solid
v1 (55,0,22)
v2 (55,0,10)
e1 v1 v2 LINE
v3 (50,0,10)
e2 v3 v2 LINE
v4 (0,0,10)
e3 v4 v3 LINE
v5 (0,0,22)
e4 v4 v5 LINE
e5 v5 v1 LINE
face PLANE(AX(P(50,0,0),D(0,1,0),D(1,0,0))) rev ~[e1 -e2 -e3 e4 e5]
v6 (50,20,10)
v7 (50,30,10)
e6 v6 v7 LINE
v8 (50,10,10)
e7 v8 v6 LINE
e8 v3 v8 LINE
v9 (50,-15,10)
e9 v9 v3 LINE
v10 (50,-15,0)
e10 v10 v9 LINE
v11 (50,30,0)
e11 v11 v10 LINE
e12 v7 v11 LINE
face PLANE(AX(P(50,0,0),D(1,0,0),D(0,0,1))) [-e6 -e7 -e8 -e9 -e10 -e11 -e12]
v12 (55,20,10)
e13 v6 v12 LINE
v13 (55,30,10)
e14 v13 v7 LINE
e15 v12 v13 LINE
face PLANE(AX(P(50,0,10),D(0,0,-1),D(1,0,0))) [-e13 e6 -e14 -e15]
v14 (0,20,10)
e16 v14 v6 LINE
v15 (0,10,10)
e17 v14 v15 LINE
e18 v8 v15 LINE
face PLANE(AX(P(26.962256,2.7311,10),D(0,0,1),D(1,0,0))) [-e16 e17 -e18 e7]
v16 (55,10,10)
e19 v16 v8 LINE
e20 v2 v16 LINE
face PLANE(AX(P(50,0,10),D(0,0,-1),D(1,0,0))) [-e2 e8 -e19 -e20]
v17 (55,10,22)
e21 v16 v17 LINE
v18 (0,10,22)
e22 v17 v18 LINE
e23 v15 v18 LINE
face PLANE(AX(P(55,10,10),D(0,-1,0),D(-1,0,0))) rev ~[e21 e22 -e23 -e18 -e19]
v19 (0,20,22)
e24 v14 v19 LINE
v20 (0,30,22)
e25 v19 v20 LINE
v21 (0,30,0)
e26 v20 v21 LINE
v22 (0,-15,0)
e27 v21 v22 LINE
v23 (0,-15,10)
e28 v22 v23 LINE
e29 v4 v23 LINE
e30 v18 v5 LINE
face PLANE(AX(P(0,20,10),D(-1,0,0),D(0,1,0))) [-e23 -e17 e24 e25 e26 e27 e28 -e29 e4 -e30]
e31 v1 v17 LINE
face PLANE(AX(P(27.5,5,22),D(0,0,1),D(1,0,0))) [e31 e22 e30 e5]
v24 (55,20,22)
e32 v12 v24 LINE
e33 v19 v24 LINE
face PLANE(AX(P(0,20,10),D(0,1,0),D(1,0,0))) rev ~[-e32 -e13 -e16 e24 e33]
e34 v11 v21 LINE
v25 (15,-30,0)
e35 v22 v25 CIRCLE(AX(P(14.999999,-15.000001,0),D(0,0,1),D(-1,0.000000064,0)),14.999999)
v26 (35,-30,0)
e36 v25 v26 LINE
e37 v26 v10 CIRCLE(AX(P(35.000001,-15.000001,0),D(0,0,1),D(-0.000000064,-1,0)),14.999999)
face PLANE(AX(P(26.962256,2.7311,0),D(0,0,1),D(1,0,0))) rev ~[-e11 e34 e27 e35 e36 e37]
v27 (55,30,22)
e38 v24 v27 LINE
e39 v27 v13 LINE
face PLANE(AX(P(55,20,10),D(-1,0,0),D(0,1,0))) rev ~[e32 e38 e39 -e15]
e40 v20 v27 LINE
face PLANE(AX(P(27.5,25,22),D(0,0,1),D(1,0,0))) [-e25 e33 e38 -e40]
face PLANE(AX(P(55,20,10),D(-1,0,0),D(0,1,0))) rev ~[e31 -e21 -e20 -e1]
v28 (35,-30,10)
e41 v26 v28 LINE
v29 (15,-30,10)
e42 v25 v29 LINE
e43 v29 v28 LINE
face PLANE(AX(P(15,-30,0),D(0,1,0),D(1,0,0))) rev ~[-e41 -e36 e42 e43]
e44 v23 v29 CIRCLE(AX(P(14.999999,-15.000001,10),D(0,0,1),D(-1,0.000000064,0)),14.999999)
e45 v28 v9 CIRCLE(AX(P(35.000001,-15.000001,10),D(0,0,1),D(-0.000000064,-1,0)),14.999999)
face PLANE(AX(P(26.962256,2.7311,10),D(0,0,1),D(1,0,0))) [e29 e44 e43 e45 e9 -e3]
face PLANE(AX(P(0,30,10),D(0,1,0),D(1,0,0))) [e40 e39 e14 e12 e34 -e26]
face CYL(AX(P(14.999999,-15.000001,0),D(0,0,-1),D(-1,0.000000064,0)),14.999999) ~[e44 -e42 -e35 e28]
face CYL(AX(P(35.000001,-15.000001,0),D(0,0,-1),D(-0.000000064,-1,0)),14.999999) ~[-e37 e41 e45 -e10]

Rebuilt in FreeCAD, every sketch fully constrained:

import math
import FreeCAD as App
import Part
import Sketcher
from FreeCAD import Vector

doc = App.newDocument("Part")
body = doc.addObject("PartDesign::Body", "Body")

# Sketch on XY plane
sketch1 = body.newObject("Sketcher::SketchObject", "Sketch")
sketch1.AttachmentSupport = (doc.getObject("XY_Plane"), [""])
sketch1.MapMode = "FlatFace"
sketch1.addGeometry([
    Part.LineSegment(Vector(55, 30, 0), Vector(0, 30, 0)),  # 0
    Part.LineSegment(Vector(0, 30, 0), Vector(0, -15, 0)),  # 1
    Part.ArcOfCircle(Part.Circle(Vector(15, -15, 0), Vector(0, 0, 1), 15), math.radians(180), math.radians(270)),  # 2
    Part.LineSegment(Vector(15, -30, 0), Vector(35, -30, 0)),  # 3
    Part.ArcOfCircle(Part.Circle(Vector(35, -15, 0), Vector(0, 0, 1), 15), math.radians(-90), math.radians(0)),  # 4
    Part.LineSegment(Vector(50, -15, 0), Vector(50, 0, 0)),  # 5
    Part.LineSegment(Vector(50, 0, 0), Vector(55, 0, 0)),  # 6
    Part.LineSegment(Vector(55, 0, 0), Vector(55, 30, 0)),  # 7
], False)
sketch1.addConstraint([
    Sketcher.Constraint("Coincident", 0, 2, 1, 1),
    Sketcher.Constraint("Tangent", 1, 2, 2, 1),
    Sketcher.Constraint("Tangent", 2, 2, 3, 1),
    Sketcher.Constraint("Tangent", 3, 2, 4, 1),
    Sketcher.Constraint("Tangent", 4, 2, 5, 1),
    Sketcher.Constraint("Coincident", 5, 2, 6, 1),
    Sketcher.Constraint("Coincident", 6, 2, 7, 1),
    Sketcher.Constraint("Coincident", 7, 2, 0, 1),
    Sketcher.Constraint("Horizontal", 0),
    Sketcher.Constraint("Vertical", 1),
    Sketcher.Constraint("Horizontal", 3),
    Sketcher.Constraint("Vertical", 5),
    Sketcher.Constraint("Horizontal", 6),
    Sketcher.Constraint("Vertical", 7),
    Sketcher.Constraint("Equal", 2, 4),
    Sketcher.Constraint("PointOnObject", 0, 2, -2),
    Sketcher.Constraint("PointOnObject", 5, 2, -1),
    Sketcher.Constraint("Radius", 2, 14.999999),
    Sketcher.Constraint("DistanceX", 0, 2, 0, 1, 55.0),
    Sketcher.Constraint("DistanceX", 3, 1, 3, 2, 20.0),
    Sketcher.Constraint("DistanceY", 1, 2, 1, 1, 45.0),
    Sketcher.Constraint("DistanceY", 5, 1, 5, 2, 15.0),
])
pad1 = body.newObject("PartDesign::Pad", "Pad")
pad1.Profile = sketch1
pad1.Length = 10

# Sketch on XY plane
sketch2 = body.newObject("Sketcher::SketchObject", "Sketch001")
sketch2.AttachmentSupport = (doc.getObject("XY_Plane"), [""])
sketch2.MapMode = "FlatFace"
sketch2.AttachmentOffset = App.Placement(Vector(0, 0, 10), App.Rotation())
sketch2.addGeometry([
    Part.LineSegment(Vector(0, 30, 0), Vector(0, 20, 0)),  # 0
    Part.LineSegment(Vector(0, 20, 0), Vector(55, 20, 0)),  # 1
    Part.LineSegment(Vector(55, 20, 0), Vector(55, 30, 0)),  # 2
    Part.LineSegment(Vector(55, 30, 0), Vector(0, 30, 0)),  # 3
    Part.LineSegment(Vector(0, 0, 0), Vector(55, 0, 0)),  # 4
    Part.LineSegment(Vector(55, 0, 0), Vector(55, 10, 0)),  # 5
    Part.LineSegment(Vector(55, 10, 0), Vector(0, 10, 0)),  # 6
    Part.LineSegment(Vector(0, 10, 0), Vector(0, 0, 0)),  # 7
], False)
sketch2.addConstraint([
    Sketcher.Constraint("Coincident", 0, 2, 1, 1),
    Sketcher.Constraint("Coincident", 1, 2, 2, 1),
    Sketcher.Constraint("Coincident", 2, 2, 3, 1),
    Sketcher.Constraint("Coincident", 3, 2, 0, 1),
    Sketcher.Constraint("Coincident", 4, 2, 5, 1),
    Sketcher.Constraint("Coincident", 5, 2, 6, 1),
    Sketcher.Constraint("Coincident", 6, 2, 7, 1),
    Sketcher.Constraint("Coincident", 7, 2, 4, 1),
    Sketcher.Constraint("Vertical", 0),
    Sketcher.Constraint("Horizontal", 1),
    Sketcher.Constraint("Vertical", 2),
    Sketcher.Constraint("Horizontal", 3),
    Sketcher.Constraint("Horizontal", 4),
    Sketcher.Constraint("Vertical", 5),
    Sketcher.Constraint("Horizontal", 6),
    Sketcher.Constraint("Vertical", 7),
    Sketcher.Constraint("Coincident", 7, 2, -1, 1),
    Sketcher.Constraint("PointOnObject", 0, 2, -2),
    Sketcher.Constraint("Vertical", 2, 2, 4, 2),
    Sketcher.Constraint("Equal", 2, 5),
    Sketcher.Constraint("DistanceX", 1, 1, 1, 2, 55.0),
    Sketcher.Constraint("DistanceY", 0, 2, 0, 1, 10.0),
    Sketcher.Constraint("DistanceY", -1, 1, 0, 2, 20.0),
])
pad2 = body.newObject("PartDesign::Pad", "Pad001")
pad2.Profile = sketch2
pad2.Length = 12

# Sketch on XZ plane
sketch3 = body.newObject("Sketcher::SketchObject", "Sketch002")
sketch3.AttachmentSupport = (doc.getObject("XZ_Plane"), [""])
sketch3.MapMode = "FlatFace"
sketch3.addGeometry([
    Part.LineSegment(Vector(50, 10, 0), Vector(50, 0, 0)),
    Part.LineSegment(Vector(50, 0, 0), Vector(55, 0, 0)),
    Part.LineSegment(Vector(55, 0, 0), Vector(55, 10, 0)),
    Part.LineSegment(Vector(55, 10, 0), Vector(50, 10, 0)),
], False)
sketch3.addConstraint([
    Sketcher.Constraint("Coincident", 0, 2, 1, 1),
    Sketcher.Constraint("Coincident", 1, 2, 2, 1),
    Sketcher.Constraint("Coincident", 2, 2, 3, 1),
    Sketcher.Constraint("Coincident", 3, 2, 0, 1),
    Sketcher.Constraint("Vertical", 0),
    Sketcher.Constraint("Horizontal", 1),
    Sketcher.Constraint("Vertical", 2),
    Sketcher.Constraint("Horizontal", 3),
    Sketcher.Constraint("PointOnObject", 0, 2, -1),
    Sketcher.Constraint("DistanceX", 1, 1, 1, 2, 5.0),
    Sketcher.Constraint("DistanceY", 0, 2, 0, 1, 10.0),
    Sketcher.Constraint("DistanceX", -1, 1, 0, 2, 50.0),
])
pocket1 = body.newObject("PartDesign::Pocket", "Pocket")
pocket1.Profile = sketch3
pocket1.Type = "ThroughAll"

doc.recompute()
